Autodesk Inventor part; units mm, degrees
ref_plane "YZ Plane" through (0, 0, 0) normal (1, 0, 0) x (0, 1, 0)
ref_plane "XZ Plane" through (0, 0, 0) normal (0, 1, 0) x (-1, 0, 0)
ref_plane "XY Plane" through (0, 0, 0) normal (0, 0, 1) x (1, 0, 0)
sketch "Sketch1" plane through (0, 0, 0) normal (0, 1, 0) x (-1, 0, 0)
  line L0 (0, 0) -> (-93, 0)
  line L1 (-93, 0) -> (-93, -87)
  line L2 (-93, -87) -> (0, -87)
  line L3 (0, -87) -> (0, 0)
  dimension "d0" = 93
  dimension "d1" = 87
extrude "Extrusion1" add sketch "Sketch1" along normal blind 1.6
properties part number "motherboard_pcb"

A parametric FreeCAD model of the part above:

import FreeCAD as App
import Part
import Sketcher
from FreeCAD import Vector


def add_polygon(sketch, points):
    """Adds a closed chain of lines whose ends are joined by coincident constraints."""
    first, n = sketch.GeometryCount, len(points)
    for a, b in zip(points, points[1:] + points[:1]):
        sketch.addGeometry(Part.LineSegment(App.Vector(*a, 0), App.Vector(*b, 0)), False)
    for i in range(n):
        sketch.addConstraint(Sketcher.Constraint("Coincident", first + i, 2, first + (i + 1) % n, 1))

doc = App.newDocument("Part")
body = doc.addObject("PartDesign::Body", "Body")

# Sketch on XZ plane
sketch1 = doc.addObject("Sketcher::SketchObject", "Sketch")
body.addObject(sketch1)
sketch1.AttachmentSupport = (doc.XZ_Plane, [""])
sketch1.MapMode = "FlatFace"
add_polygon(sketch1, [(0, -87), (0, 0), (93, 0), (93, -87)])  # lines 0-3
sketch1.addConstraint(Sketcher.Constraint("Vertical", 0))
sketch1.addConstraint(Sketcher.Constraint("Horizontal", 1))
sketch1.addConstraint(Sketcher.Constraint("Vertical", 2))
sketch1.addConstraint(Sketcher.Constraint("Horizontal", 3))
sketch1.addConstraint(Sketcher.Constraint("Coincident", 0, 2, -1, 1))
sketch1.addConstraint(Sketcher.Constraint("DistanceX", 1, 1, 1, 2, 93.0))
sketch1.addConstraint(Sketcher.Constraint("DistanceY", 0, 1, 0, 2, 87.0))
pad1 = doc.addObject("PartDesign::Pad", "Pad")
body.addObject(pad1)
pad1.Profile = sketch1
pad1.Length = 1.6
pad1.Reversed = True

doc.recompute()
